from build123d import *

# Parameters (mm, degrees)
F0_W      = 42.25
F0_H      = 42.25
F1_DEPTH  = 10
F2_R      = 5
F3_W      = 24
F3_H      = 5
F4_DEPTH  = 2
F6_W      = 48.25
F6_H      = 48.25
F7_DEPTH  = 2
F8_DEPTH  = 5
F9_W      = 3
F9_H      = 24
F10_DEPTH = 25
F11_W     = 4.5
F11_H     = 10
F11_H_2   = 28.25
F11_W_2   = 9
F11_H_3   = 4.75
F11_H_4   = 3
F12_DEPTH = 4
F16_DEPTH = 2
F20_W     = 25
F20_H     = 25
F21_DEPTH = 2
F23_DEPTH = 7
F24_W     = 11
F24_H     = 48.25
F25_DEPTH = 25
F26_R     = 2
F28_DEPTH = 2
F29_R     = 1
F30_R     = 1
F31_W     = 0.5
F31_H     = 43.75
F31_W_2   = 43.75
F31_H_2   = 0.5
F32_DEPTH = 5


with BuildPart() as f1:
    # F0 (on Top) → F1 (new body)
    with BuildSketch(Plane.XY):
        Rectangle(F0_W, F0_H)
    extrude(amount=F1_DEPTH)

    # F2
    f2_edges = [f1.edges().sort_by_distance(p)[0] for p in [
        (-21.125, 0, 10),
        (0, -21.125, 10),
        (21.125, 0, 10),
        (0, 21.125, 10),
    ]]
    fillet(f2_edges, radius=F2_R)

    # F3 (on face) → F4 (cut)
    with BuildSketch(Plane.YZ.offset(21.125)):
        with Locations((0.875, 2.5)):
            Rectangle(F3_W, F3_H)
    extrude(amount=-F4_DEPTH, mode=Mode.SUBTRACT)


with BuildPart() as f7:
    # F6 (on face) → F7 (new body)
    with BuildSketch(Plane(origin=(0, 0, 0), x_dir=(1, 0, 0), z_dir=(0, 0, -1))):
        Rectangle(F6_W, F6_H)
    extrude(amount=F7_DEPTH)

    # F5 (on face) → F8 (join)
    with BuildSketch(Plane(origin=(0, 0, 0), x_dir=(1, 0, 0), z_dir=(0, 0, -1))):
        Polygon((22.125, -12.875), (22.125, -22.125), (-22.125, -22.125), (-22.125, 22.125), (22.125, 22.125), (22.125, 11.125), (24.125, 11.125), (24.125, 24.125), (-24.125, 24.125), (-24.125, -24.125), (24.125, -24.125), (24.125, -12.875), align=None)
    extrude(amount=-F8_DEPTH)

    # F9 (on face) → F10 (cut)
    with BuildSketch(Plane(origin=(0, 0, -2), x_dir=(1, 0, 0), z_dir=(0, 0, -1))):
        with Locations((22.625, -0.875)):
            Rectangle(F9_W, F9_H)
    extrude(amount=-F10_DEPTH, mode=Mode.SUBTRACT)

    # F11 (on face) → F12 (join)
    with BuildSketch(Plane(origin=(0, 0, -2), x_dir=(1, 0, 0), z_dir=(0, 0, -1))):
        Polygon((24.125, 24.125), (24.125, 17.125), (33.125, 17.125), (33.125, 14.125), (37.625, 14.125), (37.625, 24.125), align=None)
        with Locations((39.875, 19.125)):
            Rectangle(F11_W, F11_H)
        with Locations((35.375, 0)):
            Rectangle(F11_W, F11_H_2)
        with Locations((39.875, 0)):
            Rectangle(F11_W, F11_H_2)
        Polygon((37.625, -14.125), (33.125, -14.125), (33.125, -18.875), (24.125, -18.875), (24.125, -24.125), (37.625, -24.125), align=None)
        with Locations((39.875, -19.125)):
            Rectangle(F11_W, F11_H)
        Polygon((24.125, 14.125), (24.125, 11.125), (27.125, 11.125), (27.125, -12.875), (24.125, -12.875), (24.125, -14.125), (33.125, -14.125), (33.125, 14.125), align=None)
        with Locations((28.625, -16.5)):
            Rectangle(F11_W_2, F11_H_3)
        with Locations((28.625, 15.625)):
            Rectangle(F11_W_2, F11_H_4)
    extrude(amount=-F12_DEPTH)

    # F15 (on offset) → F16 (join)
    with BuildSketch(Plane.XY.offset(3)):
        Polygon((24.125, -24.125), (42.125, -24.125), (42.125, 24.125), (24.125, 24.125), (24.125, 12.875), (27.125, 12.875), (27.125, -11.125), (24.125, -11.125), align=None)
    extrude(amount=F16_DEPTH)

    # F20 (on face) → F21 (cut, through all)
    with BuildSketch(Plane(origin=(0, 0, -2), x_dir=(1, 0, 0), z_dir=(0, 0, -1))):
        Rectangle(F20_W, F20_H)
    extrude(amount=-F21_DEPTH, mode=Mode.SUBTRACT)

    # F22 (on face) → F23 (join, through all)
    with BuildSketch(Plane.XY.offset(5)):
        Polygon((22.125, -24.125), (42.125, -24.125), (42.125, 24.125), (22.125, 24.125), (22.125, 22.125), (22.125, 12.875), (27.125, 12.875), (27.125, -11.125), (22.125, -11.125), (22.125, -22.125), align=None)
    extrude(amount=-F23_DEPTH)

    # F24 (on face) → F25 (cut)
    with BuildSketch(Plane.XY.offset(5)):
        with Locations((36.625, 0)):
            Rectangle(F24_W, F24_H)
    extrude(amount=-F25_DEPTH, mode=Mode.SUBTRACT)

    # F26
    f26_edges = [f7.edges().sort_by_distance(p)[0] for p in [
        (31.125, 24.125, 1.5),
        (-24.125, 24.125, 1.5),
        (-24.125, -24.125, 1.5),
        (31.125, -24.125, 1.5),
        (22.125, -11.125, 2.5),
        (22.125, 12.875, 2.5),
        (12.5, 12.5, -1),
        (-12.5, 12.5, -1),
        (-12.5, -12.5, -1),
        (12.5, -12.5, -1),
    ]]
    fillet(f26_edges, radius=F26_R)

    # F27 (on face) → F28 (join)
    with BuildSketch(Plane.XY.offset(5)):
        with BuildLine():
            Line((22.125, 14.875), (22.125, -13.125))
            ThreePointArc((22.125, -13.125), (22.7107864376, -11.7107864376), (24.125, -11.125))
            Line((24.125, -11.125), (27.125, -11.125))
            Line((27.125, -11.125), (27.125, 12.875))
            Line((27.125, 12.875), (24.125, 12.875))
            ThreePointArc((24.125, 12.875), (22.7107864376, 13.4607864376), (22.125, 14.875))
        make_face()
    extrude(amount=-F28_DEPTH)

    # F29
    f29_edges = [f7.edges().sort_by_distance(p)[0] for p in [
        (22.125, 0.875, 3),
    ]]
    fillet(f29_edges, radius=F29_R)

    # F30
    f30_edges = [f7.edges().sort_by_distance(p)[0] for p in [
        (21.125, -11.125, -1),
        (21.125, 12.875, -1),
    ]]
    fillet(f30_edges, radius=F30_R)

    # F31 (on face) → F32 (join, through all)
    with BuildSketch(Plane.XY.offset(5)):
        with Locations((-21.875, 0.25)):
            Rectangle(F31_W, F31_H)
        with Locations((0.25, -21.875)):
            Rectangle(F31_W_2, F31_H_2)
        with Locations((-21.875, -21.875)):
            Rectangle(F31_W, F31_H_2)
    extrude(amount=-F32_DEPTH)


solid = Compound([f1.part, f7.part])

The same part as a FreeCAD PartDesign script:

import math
import FreeCAD as App
import Part
import Sketcher


def edges_at(feature, points):
    """Names of the edges that pass closest to the given points."""
    edges = feature.Shape.Edges
    near = lambda p: min(range(len(edges)), key=lambda i: edges[i].distToShape(Part.Vertex(*p))[0])
    return sorted({f"Edge{near(p) + 1}" for p in points})


def add_polygon(sketch, points):
    """Adds a closed chain of lines whose ends are joined by coincident constraints."""
    first, n = sketch.GeometryCount, len(points)
    for a, b in zip(points, points[1:] + points[:1]):
        sketch.addGeometry(Part.LineSegment(App.Vector(*a, 0), App.Vector(*b, 0)), False)
    for i in range(n):
        sketch.addConstraint(Sketcher.Constraint("Coincident", first + i, 2, first + (i + 1) % n, 1))

doc = App.newDocument("Part")
body = doc.addObject("PartDesign::Body", "Body")

# Sketch on XY plane
sketch1 = body.newObject("Sketcher::SketchObject", "Sketch")
sketch1.AttachmentSupport = (doc.getObject("XY_Plane"), [""])
sketch1.MapMode = "FlatFace"
add_polygon(sketch1, [(-21, 21), (-21, -21), (21, -21), (21, 21)])  # lines 0-3
sketch1.addConstraint([
    Sketcher.Constraint("Vertical", 0),
    Sketcher.Constraint("Horizontal", 1),
    Sketcher.Constraint("Vertical", 2),
    Sketcher.Constraint("Horizontal", 3),
    Sketcher.Constraint("Symmetric", 0, 2, 2, 2, -1, 1),
    Sketcher.Constraint("Equal", 3, 0),
    Sketcher.Constraint("DistanceX", 1, 1, 1, 2, 42.25),
])
pad1 = body.newObject("PartDesign::Pad", "Pad")
pad1.Profile = sketch1
pad1.Length = 10
doc.recompute()

fillet = body.newObject("PartDesign::Fillet", "Fillet")
fillet.Base = (pad1, edges_at(pad1, [
    (-21.125, 0, 10),
    (0, -21.125, 10),
    (21.125, 0, 10),
    (0, 21.125, 10),
]))
fillet.Radius = 5

# Sketch on YZ plane
sketch2 = body.newObject("Sketcher::SketchObject", "Sketch001")
sketch2.AttachmentSupport = (doc.getObject("YZ_Plane"), [""])
sketch2.MapMode = "FlatFace"
sketch2.AttachmentOffset = App.Placement(App.Vector(0, 0, 21.125), App.Rotation())
add_polygon(sketch2, [(-11, 5), (-11, 0), (13, 0), (13, 5)])  # lines 0-3
sketch2.addConstraint([
    Sketcher.Constraint("Vertical", 0),
    Sketcher.Constraint("Horizontal", 1),
    Sketcher.Constraint("Vertical", 2),
    Sketcher.Constraint("Horizontal", 3),
    Sketcher.Constraint("PointOnObject", 0, 2, -1),
    Sketcher.Constraint("DistanceX", 1, 1, 1, 2, 24.0),
    Sketcher.Constraint("DistanceY", 0, 2, 0, 1, 5.0),
    Sketcher.Constraint("DistanceX", 0, 2, -1, 1, 11.125),
])
pocket1 = body.newObject("PartDesign::Pocket", "Pocket")
pocket1.Profile = sketch2
pocket1.Length = 2
body2 = doc.addObject("PartDesign::Body", "Body001")

# Sketch on XY plane
sketch3 = body2.newObject("Sketcher::SketchObject", "Sketch002")
sketch3.AttachmentSupport = (doc.getObject("XY_Plane001"), [""])
sketch3.MapMode = "FlatFace"
add_polygon(sketch3, [(-24, -24), (-24, 24), (24, 24), (24, -24)])  # lines 0-3
sketch3.addConstraint([
    Sketcher.Constraint("Vertical", 0),
    Sketcher.Constraint("Horizontal", 1),
    Sketcher.Constraint("Vertical", 2),
    Sketcher.Constraint("Horizontal", 3),
    Sketcher.Constraint("Symmetric", 0, 2, 2, 2, -1, 1),
    Sketcher.Constraint("Equal", 3, 0),
    Sketcher.Constraint("DistanceX", 1, 1, 1, 2, 48.25),
])
pad2 = body2.newObject("PartDesign::Pad", "Pad001")
pad2.Profile = sketch3
pad2.Length = 2
pad2.Reversed = True

# Sketch on XY plane
sketch4 = body2.newObject("Sketcher::SketchObject", "Sketch003")
sketch4.AttachmentSupport = (doc.getObject("XY_Plane001"), [""])
sketch4.MapMode = "FlatFace"
add_polygon(sketch4, [(22.1, 12.9), (22.1, 22.1), (-22.1, 22.1), (-22.1, -22.1), (22.1, -22.1), (22.1, -11.1), (24.1, -11.1), (24.1, -24.1), (-24.1, -24.1), (-24.1, 24.1), (24.1, 24.1), (24.1, 12.9)])  # lines 0-11
sketch4.addConstraint([
    Sketcher.Constraint("Vertical", 0),
    Sketcher.Constraint("Horizontal", 1),
    Sketcher.Constraint("Vertical", 2),
    Sketcher.Constraint("Horizontal", 3),
    Sketcher.Constraint("Vertical", 4),
    Sketcher.Constraint("Horizontal", 5),
    Sketcher.Constraint("Vertical", 6),
    Sketcher.Constraint("Horizontal", 7),
    Sketcher.Constraint("Vertical", 8),
    Sketcher.Constraint("Horizontal", 9),
    Sketcher.Constraint("Vertical", 10),
    Sketcher.Constraint("Horizontal", 11),
    Sketcher.Constraint("Symmetric", 0, 2, 2, 2, -1, 1),
    Sketcher.Constraint("Symmetric", 6, 2, 8, 2, -1, 1),
    Sketcher.Constraint("Vertical", 0, 2, 3, 2),
    Sketcher.Constraint("Vertical", 6, 2, 9, 2),
    Sketcher.Constraint("Equal", 3, 2),
    Sketcher.Constraint("Equal", 9, 8),
    Sketcher.Constraint("DistanceX", 5, 1, 5, 2, 2.0),
    Sketcher.Constraint("DistanceY", 4, 1, 4, 2, 11.0),
    Sketcher.Constraint("DistanceY", 5, 2, 10, 2, 24.0),
    Sketcher.Constraint("DistanceX", 1, 2, 1, 1, 44.25),
])
pad3 = body2.newObject("PartDesign::Pad", "Pad002")
pad3.Profile = sketch4
pad3.Length = 5

# Sketch on XY plane
sketch5 = body2.newObject("Sketcher::SketchObject", "Sketch004")
sketch5.AttachmentSupport = (doc.getObject("XY_Plane001"), [""])
sketch5.MapMode = "FlatFace"
sketch5.AttachmentOffset = App.Placement(App.Vector(0, 0, -2), App.Rotation())
add_polygon(sketch5, [(21.1, -11.1), (21.1, 12.9), (24.1, 12.9), (24.1, -11.1)])  # lines 0-3
sketch5.addConstraint([
    Sketcher.Constraint("Vertical", 0),
    Sketcher.Constraint("Horizontal", 1),
    Sketcher.Constraint("Vertical", 2),
    Sketcher.Constraint("Horizontal", 3),
    Sketcher.Constraint("DistanceX", 1, 1, 1, 2, 3.0),
    Sketcher.Constraint("DistanceY", 0, 1, 0, 2, 24.0),
    Sketcher.Constraint("DistanceX", -1, 1, 0, 2, 21.125),
    Sketcher.Constraint("DistanceY", -1, 1, 0, 2, 12.875),
])
pocket2 = body2.newObject("PartDesign::Pocket", "Pocket001")
pocket2.Profile = sketch5
pocket2.Length = 25
pocket2.Reversed = True

# Sketch on XY plane
sketch6 = body2.newObject("Sketcher::SketchObject", "Sketch005")
sketch6.AttachmentSupport = (doc.getObject("XY_Plane001"), [""])
sketch6.MapMode = "FlatFace"
sketch6.AttachmentOffset = App.Placement(App.Vector(0, 0, -2), App.Rotation())
add_polygon(sketch6, [(24.1, -24.1), (24.1, -11.1), (27.1, -11.1), (27.1, 12.9), (24.1, 12.9), (24.1, 24.1), (42.1, 24.1), (42.1, -24.1)])  # lines 0-7
sketch6.addConstraint([
    Sketcher.Constraint("Vertical", 0),
    Sketcher.Constraint("Horizontal", 1),
    Sketcher.Constraint("Vertical", 2),
    Sketcher.Constraint("Horizontal", 3),
    Sketcher.Constraint("Vertical", 4),
    Sketcher.Constraint("Horizontal", 5),
    Sketcher.Constraint("Vertical", 6),
    Sketcher.Constraint("Horizontal", 7),
    Sketcher.Constraint("Symmetric", 4, 2, 7, 2, -1),
    Sketcher.Constraint("DistanceX", 1, 1, 1, 2, 3.0),
    Sketcher.Constraint("DistanceX", 5, 1, 5, 2, 18.0),
    Sketcher.Constraint("DistanceY", 0, 1, 0, 2, 13.0),
    Sketcher.Constraint("DistanceY", 2, 1, 2, 2, 24.0),
    Sketcher.Constraint("DistanceY", 4, 1, 4, 2, 11.25),
    Sketcher.Constraint("DistanceX", -1, 1, 0, 2, 24.125),
])
pad4 = body2.newObject("PartDesign::Pad", "Pad003")
pad4.Profile = sketch6
pad4.Length = 4

# Sketch on XY plane
sketch7 = body2.newObject("Sketcher::SketchObject", "Sketch006")
sketch7.AttachmentSupport = (doc.getObject("XY_Plane001"), [""])
sketch7.MapMode = "FlatFace"
sketch7.AttachmentOffset = App.Placement(App.Vector(0, 0, 3), App.Rotation())
add_polygon(sketch7, [(24.1, -24.1), (42.1, -24.1), (42.1, 24.1), (24.1, 24.1), (24.1, 12.9), (27.1, 12.9), (27.1, -11.1), (24.1, -11.1)])  # lines 0-7
sketch7.addConstraint([
    Sketcher.Constraint("Horizontal", 0),
    Sketcher.Constraint("Vertical", 1),
    Sketcher.Constraint("Horizontal", 2),
    Sketcher.Constraint("Vertical", 3),
    Sketcher.Constraint("Horizontal", 4),
    Sketcher.Constraint("Vertical", 5),
    Sketcher.Constraint("Horizontal", 6),
    Sketcher.Constraint("Vertical", 7),
    Sketcher.Constraint("Symmetric", 2, 2, 7, 2, -1),
    Sketcher.Constraint("DistanceX", 0, 1, 0, 2, 18.0),
    Sketcher.Constraint("DistanceX", 4, 1, 4, 2, 3.0),
    Sketcher.Constraint("DistanceY", 5, 2, 5, 1, 24.0),
    Sketcher.Constraint("DistanceY", 7, 2, 7, 1, 13.0),
    Sketcher.Constraint("DistanceY", 1, 1, 1, 2, 48.25),
    Sketcher.Constraint("DistanceX", -1, 1, 0, 2, 42.125),
])
pad5 = body2.newObject("PartDesign::Pad", "Pad004")
pad5.Profile = sketch7
pad5.Length = 2

# Sketch on XY plane
sketch8 = body2.newObject("Sketcher::SketchObject", "Sketch007")
sketch8.AttachmentSupport = (doc.getObject("XY_Plane001"), [""])
sketch8.MapMode = "FlatFace"
sketch8.AttachmentOffset = App.Placement(App.Vector(0, 0, -2), App.Rotation())
add_polygon(sketch8, [(-12, -12), (-12, 12), (12, 12), (12, -12)])  # lines 0-3
sketch8.addConstraint([
    Sketcher.Constraint("Vertical", 0),
    Sketcher.Constraint("Horizontal", 1),
    Sketcher.Constraint("Vertical", 2),
    Sketcher.Constraint("Horizontal", 3),
    Sketcher.Constraint("Symmetric", 0, 2, 2, 2, -1, 1),
    Sketcher.Constraint("Equal", 3, 0),
    Sketcher.Constraint("DistanceX", 1, 1, 1, 2, 25.0),
])
pocket3 = body2.newObject("PartDesign::Pocket", "Pocket002")
pocket3.Profile = sketch8
pocket3.Type = "ThroughAll"
pocket3.Reversed = True

# Sketch on XY plane
sketch9 = body2.newObject("Sketcher::SketchObject", "Sketch008")
sketch9.AttachmentSupport = (doc.getObject("XY_Plane001"), [""])
sketch9.MapMode = "FlatFace"
sketch9.AttachmentOffset = App.Placement(App.Vector(0, 0, 5), App.Rotation())
add_polygon(sketch9, [(22, -24), (42, -24), (42, 24), (22, 24), (22, 13), (27, 13), (27, -11), (22, -11)])  # lines 0-7
sketch9.addConstraint([
    Sketcher.Constraint("Horizontal", 0),
    Sketcher.Constraint("Vertical", 1),
    Sketcher.Constraint("Horizontal", 2),
    Sketcher.Constraint("Vertical", 3),
    Sketcher.Constraint("Horizontal", 4),
    Sketcher.Constraint("Vertical", 5),
    Sketcher.Constraint("Horizontal", 6),
    Sketcher.Constraint("Vertical", 7),
    Sketcher.Constraint("Symmetric", 2, 2, 7, 2, -1),
    Sketcher.Constraint("DistanceX", 0, 1, 0, 2, 20.0),
    Sketcher.Constraint("DistanceX", 4, 1, 4, 2, 5.0),
    Sketcher.Constraint("DistanceY", 5, 2, 5, 1, 24.0),
    Sketcher.Constraint("DistanceY", 7, 2, 7, 1, 13.0),
    Sketcher.Constraint("DistanceY", 1, 1, 1, 2, 48.25),
    Sketcher.Constraint("DistanceX", -1, 1, 0, 2, 42.125),
])
pad6 = body2.newObject("PartDesign::Pad", "Pad005")
pad6.Profile = sketch9
pad6.Type = "UpToLast"
pad6.Reversed = True

# Sketch on XY plane
sketch10 = body2.newObject("Sketcher::SketchObject", "Sketch009")
sketch10.AttachmentSupport = (doc.getObject("XY_Plane001"), [""])
sketch10.MapMode = "FlatFace"
sketch10.AttachmentOffset = App.Placement(App.Vector(0, 0, 5), App.Rotation())
add_polygon(sketch10, [(31, 24), (31, -24), (42, -24), (42, 24)])  # lines 0-3
sketch10.addConstraint([
    Sketcher.Constraint("Vertical", 0),
    Sketcher.Constraint("Horizontal", 1),
    Sketcher.Constraint("Vertical", 2),
    Sketcher.Constraint("Horizontal", 3),
    Sketcher.Constraint("DistanceX", 1, 1, 1, 2, 11.0),
    Sketcher.Constraint("DistanceY", 0, 2, 0, 1, 48.25),
    Sketcher.Constraint("DistanceX", -1, 1, 0, 2, 31.125),
    Sketcher.Constraint("DistanceY", 0, 2, -1, 1, 24.125),
])
pocket4 = body2.newObject("PartDesign::Pocket", "Pocket003")
pocket4.Profile = sketch10
pocket4.Length = 25
doc.recompute()

fillet2 = body2.newObject("PartDesign::Fillet", "Fillet001")
fillet2.Base = (pocket4, edges_at(pocket4, [
    (31.125, 24.125, 1.5),
    (-24.125, 24.125, 1.5),
    (-24.125, -24.125, 1.5),
    (31.125, -24.125, 1.5),
    (22.125, -11.125, 2.5),
    (22.125, 12.875, 2.5),
    (12.5, 12.5, -1),
    (-12.5, 12.5, -1),
    (-12.5, -12.5, -1),
    (12.5, -12.5, -1),
]))
fillet2.Radius = 2

# Sketch on XY plane
sketch11 = body2.newObject("Sketcher::SketchObject", "Sketch010")
sketch11.AttachmentSupport = (doc.getObject("XY_Plane001"), [""])
sketch11.MapMode = "FlatFace"
sketch11.AttachmentOffset = App.Placement(App.Vector(0, 0, 5), App.Rotation())
sketch11.addGeometry([
    Part.LineSegment(App.Vector(22.1, 14.9, 0), App.Vector(22.1, -13.1, 0)),  # 0
    Part.ArcOfCircle(Part.Circle(App.Vector(24.1, -13.1, 0), App.Vector(0, 0, 1), 2), math.radians(90), math.radians(180)),  # 1
    Part.LineSegment(App.Vector(24.1, -11.1, 0), App.Vector(27.1, -11.1, 0)),  # 2
    Part.LineSegment(App.Vector(27.1, -11.1, 0), App.Vector(27.1, 12.9, 0)),  # 3
    Part.LineSegment(App.Vector(27.1, 12.9, 0), App.Vector(24.1, 12.9, 0)),  # 4
    Part.ArcOfCircle(Part.Circle(App.Vector(24.1, 14.9, 0), App.Vector(0, 0, 1), 2), math.radians(180), math.radians(270)),  # 5
], False)
sketch11.addConstraint([
    Sketcher.Constraint("Tangent", 0, 2, 1, 2),
    Sketcher.Constraint("Tangent", 1, 1, 2, 1),
    Sketcher.Constraint("Coincident", 2, 2, 3, 1),
    Sketcher.Constraint("Coincident", 3, 2, 4, 1),
    Sketcher.Constraint("Tangent", 4, 2, 5, 2),
    Sketcher.Constraint("Tangent", 5, 1, 0, 1),
    Sketcher.Constraint("Vertical", 0),
    Sketcher.Constraint("Horizontal", 2),
    Sketcher.Constraint("Vertical", 3),
    Sketcher.Constraint("Horizontal", 4),
    Sketcher.Constraint("Equal", 1, 5),
    Sketcher.Constraint("Radius", 1, 2.0),
    Sketcher.Constraint("DistanceX", 2, 1, 2, 2, 3.0),
    Sketcher.Constraint("DistanceY", 0, 2, 0, 1, 28.0),
    Sketcher.Constraint("DistanceX", -1, 1, 1, 3, 24.125),
    Sketcher.Constraint("DistanceY", 1, 3, -1, 1, 13.125),
])
pad7 = body2.newObject("PartDesign::Pad", "Pad006")
pad7.Profile = sketch11
pad7.Length = 2
pad7.Reversed = True
doc.recompute()

fillet3 = body2.newObject("PartDesign::Fillet", "Fillet002")
fillet3.Base = (pad7, edges_at(pad7, [(22.125, 0.875, 3)]))
fillet3.Radius = 1
doc.recompute()

fillet4 = body2.newObject("PartDesign::Fillet", "Fillet003")
fillet4.Base = (fillet3, edges_at(fillet3, [(21.125, -11.125, -1), (21.125, 12.875, -1)]))
fillet4.Radius = 1

# Sketch on XY plane
sketch12 = body2.newObject("Sketcher::SketchObject", "Sketch011")
sketch12.AttachmentSupport = (doc.getObject("XY_Plane001"), [""])
sketch12.MapMode = "FlatFace"
sketch12.AttachmentOffset = App.Placement(App.Vector(0, 0, 5), App.Rotation())
add_polygon(sketch12, [(-22.1, 22.1), (-22.1, -22.1), (22.1, -22.1), (22.1, -21.6), (-21.6, -21.6), (-21.6, 22.1)])  # lines 0-5
sketch12.addConstraint([
    Sketcher.Constraint("Vertical", 0),
    Sketcher.Constraint("Horizontal", 1),
    Sketcher.Constraint("Vertical", 2),
    Sketcher.Constraint("Horizontal", 3),
    Sketcher.Constraint("Vertical", 4),
    Sketcher.Constraint("Horizontal", 5),
    Sketcher.Constraint("Symmetric", 1, 2, 5, 2, -1, 1),
    Sketcher.Constraint("Equal", 1, 0),
    Sketcher.Constraint("Equal", 5, 2),
    Sketcher.Constraint("DistanceX", 5, 2, 5, 1, 0.5),
    Sketcher.Constraint("DistanceX", 1, 1, 1, 2, 44.25),
])
pad8 = body2.newObject("PartDesign::Pad", "Pad007")
pad8.Profile = sketch12
pad8.Length = 5
pad8.Reversed = True

doc.recompute()
